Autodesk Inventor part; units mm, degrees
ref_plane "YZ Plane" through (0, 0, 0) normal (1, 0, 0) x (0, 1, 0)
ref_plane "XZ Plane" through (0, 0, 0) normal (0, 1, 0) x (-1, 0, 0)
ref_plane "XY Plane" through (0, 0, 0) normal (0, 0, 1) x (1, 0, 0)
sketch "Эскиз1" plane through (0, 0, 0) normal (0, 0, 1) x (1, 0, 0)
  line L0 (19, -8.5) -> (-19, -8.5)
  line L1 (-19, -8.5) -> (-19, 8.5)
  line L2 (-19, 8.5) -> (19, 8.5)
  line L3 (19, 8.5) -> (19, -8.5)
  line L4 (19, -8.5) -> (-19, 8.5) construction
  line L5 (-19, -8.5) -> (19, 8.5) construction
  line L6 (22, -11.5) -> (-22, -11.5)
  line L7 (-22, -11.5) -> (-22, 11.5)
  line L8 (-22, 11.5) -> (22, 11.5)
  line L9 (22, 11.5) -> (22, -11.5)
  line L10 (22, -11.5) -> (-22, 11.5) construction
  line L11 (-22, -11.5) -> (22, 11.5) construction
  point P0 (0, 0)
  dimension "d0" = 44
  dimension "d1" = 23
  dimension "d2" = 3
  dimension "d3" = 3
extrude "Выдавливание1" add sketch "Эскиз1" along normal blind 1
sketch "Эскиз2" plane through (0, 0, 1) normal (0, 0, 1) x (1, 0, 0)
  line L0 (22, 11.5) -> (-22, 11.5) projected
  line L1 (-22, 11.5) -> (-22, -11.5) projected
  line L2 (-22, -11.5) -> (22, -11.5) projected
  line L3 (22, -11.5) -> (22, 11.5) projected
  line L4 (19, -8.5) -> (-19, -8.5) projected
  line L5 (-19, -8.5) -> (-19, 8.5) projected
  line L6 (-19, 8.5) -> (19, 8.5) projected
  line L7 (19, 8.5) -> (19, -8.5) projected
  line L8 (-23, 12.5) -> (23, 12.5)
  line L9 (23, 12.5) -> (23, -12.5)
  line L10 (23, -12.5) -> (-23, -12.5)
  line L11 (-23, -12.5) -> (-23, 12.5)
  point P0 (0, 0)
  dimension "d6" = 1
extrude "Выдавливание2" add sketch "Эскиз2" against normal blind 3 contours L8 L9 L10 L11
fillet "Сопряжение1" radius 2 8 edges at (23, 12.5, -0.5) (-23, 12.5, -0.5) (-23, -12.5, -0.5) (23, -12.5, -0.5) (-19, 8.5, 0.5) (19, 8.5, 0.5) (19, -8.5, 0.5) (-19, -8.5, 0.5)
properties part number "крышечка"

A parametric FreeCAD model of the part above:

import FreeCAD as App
import Part
import Sketcher
from FreeCAD import Vector
Q = App.Units.Quantity


def edges_at(feature, points):
    """Names of the edges that pass closest to the given points."""
    edges = feature.Shape.Edges
    near = lambda p: min(range(len(edges)), key=lambda i: edges[i].distToShape(Part.Vertex(*p))[0])
    return sorted({f"Edge{near(p) + 1}" for p in points})


def add_polygon(sketch, points):
    """Adds a closed chain of lines whose ends are joined by coincident constraints."""
    first, n = sketch.GeometryCount, len(points)
    for a, b in zip(points, points[1:] + points[:1]):
        sketch.addGeometry(Part.LineSegment(App.Vector(*a, 0), App.Vector(*b, 0)), False)
    for i in range(n):
        sketch.addConstraint(Sketcher.Constraint("Coincident", first + i, 2, first + (i + 1) % n, 1))

doc = App.newDocument("Part")
body = doc.addObject("PartDesign::Body", "Body")

# Sketch on XY plane
sketch1 = body.newObject("Sketcher::SketchObject", "Sketch")
sketch1.AttachmentSupport = (doc.getObject("XY_Plane"), [""])
sketch1.MapMode = "FlatFace"
add_polygon(sketch1, [(-22, -11.5), (22, -11.5), (22, 11.5), (-22, 11.5)])  # lines 0-3
add_polygon(sketch1, [(19, 8.5), (19, -8.5), (-19, -8.5), (-19, 8.5)])  # lines 4-7
sketch1.addConstraint([
    Sketcher.Constraint("Horizontal", 0),
    Sketcher.Constraint("Vertical", 1),
    Sketcher.Constraint("Horizontal", 2),
    Sketcher.Constraint("Vertical", 3),
    Sketcher.Constraint("Vertical", 4),
    Sketcher.Constraint("Horizontal", 5),
    Sketcher.Constraint("Vertical", 6),
    Sketcher.Constraint("Horizontal", 7),
    Sketcher.Constraint("Symmetric", 0, 2, 2, 2, -1, 1),
    Sketcher.Constraint("Symmetric", 4, 2, 6, 2, -1, 1),
    Sketcher.Constraint("DistanceX", 0, 1, 0, 2, Q("44 mm")),
    Sketcher.Constraint("DistanceY", 1, 1, 1, 2, Q("23 mm")),
    Sketcher.Constraint("DistanceX", 4, 2, 0, 2, Q("3 mm")),
    Sketcher.Constraint("DistanceY", 0, 2, 4, 2, Q("3 mm")),
])
pad1 = body.newObject("PartDesign::Pad", "Pad")
pad1.Profile = sketch1
pad1.Length = 1

# Sketch on XY plane
sketch2 = body.newObject("Sketcher::SketchObject", "Sketch001")
sketch2.AttachmentSupport = (doc.getObject("XY_Plane"), [""])
sketch2.MapMode = "FlatFace"
sketch2.AttachmentOffset = App.Placement(Vector(0, 0, 1), App.Rotation())
add_polygon(sketch2, [(23, 12.5), (-23, 12.5), (-23, -12.5), (23, -12.5)])  # lines 0-3
add_polygon(sketch2, [(-22, 11.5), (22, 11.5), (22, -11.5), (-22, -11.5)])  # lines 4-7
sketch2.addConstraint([
    Sketcher.Constraint("Horizontal", 0),
    Sketcher.Constraint("Vertical", 1),
    Sketcher.Constraint("Horizontal", 2),
    Sketcher.Constraint("Vertical", 3),
    Sketcher.Constraint("Horizontal", 4),
    Sketcher.Constraint("Vertical", 5),
    Sketcher.Constraint("Horizontal", 6),
    Sketcher.Constraint("Vertical", 7),
    Sketcher.Constraint("Symmetric", 0, 2, 2, 2, -1, 1),
    Sketcher.Constraint("Symmetric", 4, 2, 6, 2, -1, 1),
    Sketcher.Constraint("DistanceX", 4, 2, 3, 2, Q("1 mm")),
    Sketcher.Constraint("DistanceY", 4, 2, 3, 2, Q("1 mm")),
    Sketcher.Constraint("DistanceX", 0, 2, 0, 1, Q("46 mm")),
    Sketcher.Constraint("DistanceY", 1, 2, 1, 1, Q("25 mm")),
])
pad2 = body.newObject("PartDesign::Pad", "Pad001")
pad2.Profile = sketch2
pad2.Length = 3
pad2.Reversed = True
doc.recompute()

fillet = body.newObject("PartDesign::Fillet", "Fillet")
fillet.Base = (pad2, edges_at(pad2, [
    (23, 12.5, -0.5),
    (-23, 12.5, -0.5),
    (-23, -12.5, -0.5),
    (23, -12.5, -0.5),
    (-19, 8.5, 0.5),
    (19, 8.5, 0.5),
    (19, -8.5, 0.5),
    (-19, -8.5, 0.5),
]))
fillet.Radius = 2

doc.recompute()
